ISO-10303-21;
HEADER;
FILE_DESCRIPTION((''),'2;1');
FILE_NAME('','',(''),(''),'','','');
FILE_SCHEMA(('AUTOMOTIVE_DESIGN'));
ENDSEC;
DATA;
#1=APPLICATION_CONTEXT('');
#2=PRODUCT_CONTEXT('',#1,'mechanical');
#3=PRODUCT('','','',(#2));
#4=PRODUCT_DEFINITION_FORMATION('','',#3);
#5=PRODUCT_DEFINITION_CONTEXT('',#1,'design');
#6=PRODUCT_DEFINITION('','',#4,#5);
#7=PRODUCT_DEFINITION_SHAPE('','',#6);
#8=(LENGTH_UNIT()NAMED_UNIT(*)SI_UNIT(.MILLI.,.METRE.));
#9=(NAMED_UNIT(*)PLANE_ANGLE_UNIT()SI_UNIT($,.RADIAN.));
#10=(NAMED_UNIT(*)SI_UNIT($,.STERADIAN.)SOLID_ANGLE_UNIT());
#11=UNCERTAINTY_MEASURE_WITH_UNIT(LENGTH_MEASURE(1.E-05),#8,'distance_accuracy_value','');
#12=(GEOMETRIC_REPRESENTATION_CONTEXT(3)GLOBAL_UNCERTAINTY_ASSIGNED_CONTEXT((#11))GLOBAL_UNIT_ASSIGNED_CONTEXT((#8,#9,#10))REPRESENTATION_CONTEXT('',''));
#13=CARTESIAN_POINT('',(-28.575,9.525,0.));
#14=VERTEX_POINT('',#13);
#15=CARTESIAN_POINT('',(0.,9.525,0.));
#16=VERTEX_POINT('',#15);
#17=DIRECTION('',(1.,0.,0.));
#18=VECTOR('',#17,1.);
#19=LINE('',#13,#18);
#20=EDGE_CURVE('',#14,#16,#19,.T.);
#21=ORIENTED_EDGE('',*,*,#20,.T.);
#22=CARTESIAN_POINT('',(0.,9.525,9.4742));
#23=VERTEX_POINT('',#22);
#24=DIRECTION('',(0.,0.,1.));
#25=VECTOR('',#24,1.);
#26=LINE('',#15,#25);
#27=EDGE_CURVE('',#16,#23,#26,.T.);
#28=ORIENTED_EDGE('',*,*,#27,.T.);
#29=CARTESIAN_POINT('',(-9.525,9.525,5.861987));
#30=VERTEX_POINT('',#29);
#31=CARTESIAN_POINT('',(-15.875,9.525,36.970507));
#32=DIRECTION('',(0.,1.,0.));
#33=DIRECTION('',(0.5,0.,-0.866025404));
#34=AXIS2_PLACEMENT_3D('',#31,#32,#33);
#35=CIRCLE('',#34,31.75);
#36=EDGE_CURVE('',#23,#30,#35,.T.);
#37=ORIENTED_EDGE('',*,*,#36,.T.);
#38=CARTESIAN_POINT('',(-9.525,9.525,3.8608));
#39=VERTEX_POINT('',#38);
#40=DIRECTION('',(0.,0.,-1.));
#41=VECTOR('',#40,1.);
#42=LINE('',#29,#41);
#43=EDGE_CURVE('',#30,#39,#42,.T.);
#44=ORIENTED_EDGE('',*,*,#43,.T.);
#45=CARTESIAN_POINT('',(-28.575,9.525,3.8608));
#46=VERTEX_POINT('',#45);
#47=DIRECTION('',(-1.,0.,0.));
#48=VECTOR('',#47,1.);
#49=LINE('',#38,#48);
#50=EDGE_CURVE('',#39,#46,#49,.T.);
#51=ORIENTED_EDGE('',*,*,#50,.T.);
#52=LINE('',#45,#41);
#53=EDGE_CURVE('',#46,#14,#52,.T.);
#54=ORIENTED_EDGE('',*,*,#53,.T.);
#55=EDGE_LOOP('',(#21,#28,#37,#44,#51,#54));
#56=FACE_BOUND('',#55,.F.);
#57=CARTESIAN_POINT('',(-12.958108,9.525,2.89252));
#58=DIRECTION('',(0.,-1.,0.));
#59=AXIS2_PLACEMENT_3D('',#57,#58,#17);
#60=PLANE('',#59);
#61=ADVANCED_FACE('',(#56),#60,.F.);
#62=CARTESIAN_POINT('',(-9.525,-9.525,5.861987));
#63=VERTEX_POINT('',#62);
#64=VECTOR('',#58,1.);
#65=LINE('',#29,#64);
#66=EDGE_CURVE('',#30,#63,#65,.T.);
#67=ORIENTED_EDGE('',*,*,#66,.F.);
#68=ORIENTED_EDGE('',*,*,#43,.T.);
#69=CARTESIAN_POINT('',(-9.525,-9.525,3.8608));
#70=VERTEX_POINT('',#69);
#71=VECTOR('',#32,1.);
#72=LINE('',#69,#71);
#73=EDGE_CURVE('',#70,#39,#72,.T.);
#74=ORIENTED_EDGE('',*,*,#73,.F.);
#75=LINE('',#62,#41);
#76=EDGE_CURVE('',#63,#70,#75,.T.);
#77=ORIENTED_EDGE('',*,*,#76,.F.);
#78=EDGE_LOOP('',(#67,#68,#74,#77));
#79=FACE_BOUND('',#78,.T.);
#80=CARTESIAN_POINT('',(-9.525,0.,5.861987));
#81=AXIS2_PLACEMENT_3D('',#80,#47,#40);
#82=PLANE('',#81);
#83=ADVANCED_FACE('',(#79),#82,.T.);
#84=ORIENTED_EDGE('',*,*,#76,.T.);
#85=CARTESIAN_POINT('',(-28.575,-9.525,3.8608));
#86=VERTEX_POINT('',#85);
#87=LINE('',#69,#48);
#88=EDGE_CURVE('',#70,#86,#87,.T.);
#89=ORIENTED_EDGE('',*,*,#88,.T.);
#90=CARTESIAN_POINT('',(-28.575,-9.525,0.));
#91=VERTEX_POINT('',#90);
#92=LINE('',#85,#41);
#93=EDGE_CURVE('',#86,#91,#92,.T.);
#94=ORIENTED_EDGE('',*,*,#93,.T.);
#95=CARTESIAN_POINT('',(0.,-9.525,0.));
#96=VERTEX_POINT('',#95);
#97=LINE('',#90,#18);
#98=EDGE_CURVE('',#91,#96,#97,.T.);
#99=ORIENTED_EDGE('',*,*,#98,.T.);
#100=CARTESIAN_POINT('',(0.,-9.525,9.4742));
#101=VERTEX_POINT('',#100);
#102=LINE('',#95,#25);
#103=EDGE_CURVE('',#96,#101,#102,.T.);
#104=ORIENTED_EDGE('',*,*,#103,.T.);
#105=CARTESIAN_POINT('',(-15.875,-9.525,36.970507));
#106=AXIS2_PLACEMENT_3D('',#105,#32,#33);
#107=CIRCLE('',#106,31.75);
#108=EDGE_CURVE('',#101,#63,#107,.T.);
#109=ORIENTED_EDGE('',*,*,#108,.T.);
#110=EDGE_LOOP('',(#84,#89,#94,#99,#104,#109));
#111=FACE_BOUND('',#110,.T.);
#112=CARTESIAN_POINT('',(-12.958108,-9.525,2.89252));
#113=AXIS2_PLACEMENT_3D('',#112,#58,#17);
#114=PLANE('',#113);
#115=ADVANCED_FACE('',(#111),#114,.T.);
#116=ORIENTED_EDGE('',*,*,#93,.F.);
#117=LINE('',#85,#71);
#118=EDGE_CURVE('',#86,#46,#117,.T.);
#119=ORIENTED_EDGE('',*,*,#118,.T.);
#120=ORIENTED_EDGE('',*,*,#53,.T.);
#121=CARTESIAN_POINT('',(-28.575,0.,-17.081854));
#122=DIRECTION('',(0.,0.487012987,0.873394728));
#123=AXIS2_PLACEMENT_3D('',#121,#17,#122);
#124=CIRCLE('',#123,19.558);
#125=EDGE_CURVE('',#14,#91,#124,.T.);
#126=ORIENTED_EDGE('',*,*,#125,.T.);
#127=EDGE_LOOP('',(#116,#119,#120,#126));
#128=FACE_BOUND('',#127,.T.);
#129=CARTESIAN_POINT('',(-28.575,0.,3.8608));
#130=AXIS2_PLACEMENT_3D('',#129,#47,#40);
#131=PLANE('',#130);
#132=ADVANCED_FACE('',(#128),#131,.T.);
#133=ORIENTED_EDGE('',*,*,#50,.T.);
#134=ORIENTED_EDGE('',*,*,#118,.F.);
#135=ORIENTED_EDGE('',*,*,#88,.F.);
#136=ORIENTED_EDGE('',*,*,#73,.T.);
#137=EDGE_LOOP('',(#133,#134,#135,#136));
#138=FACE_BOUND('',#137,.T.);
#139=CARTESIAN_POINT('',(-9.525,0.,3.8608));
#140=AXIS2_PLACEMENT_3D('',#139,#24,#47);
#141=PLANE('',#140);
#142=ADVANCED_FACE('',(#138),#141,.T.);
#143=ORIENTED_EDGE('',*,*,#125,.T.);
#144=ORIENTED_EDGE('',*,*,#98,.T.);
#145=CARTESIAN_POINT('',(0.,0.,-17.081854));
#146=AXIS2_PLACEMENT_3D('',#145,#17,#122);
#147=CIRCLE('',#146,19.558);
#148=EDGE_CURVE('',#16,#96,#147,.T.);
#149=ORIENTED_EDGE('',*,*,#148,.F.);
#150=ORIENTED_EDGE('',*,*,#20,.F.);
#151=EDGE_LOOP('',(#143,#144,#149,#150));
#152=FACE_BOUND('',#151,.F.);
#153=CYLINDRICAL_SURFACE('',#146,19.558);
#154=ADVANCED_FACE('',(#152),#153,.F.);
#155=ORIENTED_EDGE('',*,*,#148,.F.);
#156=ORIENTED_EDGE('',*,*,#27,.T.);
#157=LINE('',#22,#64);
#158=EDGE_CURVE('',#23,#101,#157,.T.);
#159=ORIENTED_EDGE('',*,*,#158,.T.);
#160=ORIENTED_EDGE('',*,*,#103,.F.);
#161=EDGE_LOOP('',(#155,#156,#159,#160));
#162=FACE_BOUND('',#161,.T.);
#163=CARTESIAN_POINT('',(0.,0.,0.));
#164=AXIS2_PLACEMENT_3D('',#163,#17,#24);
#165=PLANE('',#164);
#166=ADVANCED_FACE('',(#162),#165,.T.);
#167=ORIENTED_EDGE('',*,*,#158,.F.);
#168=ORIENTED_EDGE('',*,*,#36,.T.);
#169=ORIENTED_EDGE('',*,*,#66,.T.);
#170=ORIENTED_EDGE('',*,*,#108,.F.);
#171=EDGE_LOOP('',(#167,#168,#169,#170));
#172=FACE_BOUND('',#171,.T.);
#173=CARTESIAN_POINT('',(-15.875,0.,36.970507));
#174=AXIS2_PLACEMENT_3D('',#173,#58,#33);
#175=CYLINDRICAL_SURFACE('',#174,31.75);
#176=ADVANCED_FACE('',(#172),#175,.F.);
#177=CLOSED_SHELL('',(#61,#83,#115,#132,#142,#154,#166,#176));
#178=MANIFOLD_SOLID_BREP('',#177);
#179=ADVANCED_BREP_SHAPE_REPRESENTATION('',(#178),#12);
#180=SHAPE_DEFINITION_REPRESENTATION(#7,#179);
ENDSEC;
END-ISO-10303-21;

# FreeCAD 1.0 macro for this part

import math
import FreeCAD as App
import Part
import Sketcher
Q = App.Units.Quantity

doc = App.newDocument("Part")
body = doc.addObject("PartDesign::Body", "Body")

sketch1 = body.newObject("Sketcher::SketchObject", "Sketch")
sketch1.AttachmentSupport = (doc.getObject("XZ_Plane"), [""])
sketch1.MapMode = "FlatFace"
sketch1.addGeometry(Part.LineSegment(App.Vector(-28.6, 0, 0), App.Vector(0, 0, 0)), False)
sketch1.addGeometry(Part.LineSegment(App.Vector(0, 0, 0), App.Vector(0, 9.5, 0)), False)
sketch1.addGeometry(Part.ArcOfCircle(Part.Circle(App.Vector(-15.9, 37, 0), App.Vector(0, 0, 1), 31.8), math.radians(-78.46), math.radians(-60)), False)
sketch1.addGeometry(Part.LineSegment(App.Vector(-9.5, 5.9, 0), App.Vector(-9.5, 3.9, 0)), False)
sketch1.addGeometry(Part.LineSegment(App.Vector(-9.5, 3.9, 0), App.Vector(-28.6, 3.9, 0)), False)
sketch1.addGeometry(Part.LineSegment(App.Vector(-28.6, 3.9, 0), App.Vector(-28.6, 0, 0)), False)
sketch1.addConstraint(Sketcher.Constraint("Coincident", 0, 2, 1, 1))
sketch1.addConstraint(Sketcher.Constraint("Coincident", 1, 2, 2, 2))
sketch1.addConstraint(Sketcher.Constraint("Coincident", 2, 1, 3, 1))
sketch1.addConstraint(Sketcher.Constraint("Coincident", 3, 2, 4, 1))
sketch1.addConstraint(Sketcher.Constraint("Coincident", 4, 2, 5, 1))
sketch1.addConstraint(Sketcher.Constraint("Coincident", 5, 2, 0, 1))
sketch1.addConstraint(Sketcher.Constraint("Horizontal", 0))
sketch1.addConstraint(Sketcher.Constraint("Vertical", 1))
sketch1.addConstraint(Sketcher.Constraint("Vertical", 3))
sketch1.addConstraint(Sketcher.Constraint("Horizontal", 4))
sketch1.addConstraint(Sketcher.Constraint("Vertical", 5))
sketch1.addConstraint(Sketcher.Constraint("Coincident", 0, 2, -1, 1))
sketch1.addConstraint(Sketcher.Constraint("Radius", 2, Q("1.25 in")))
sketch1.addConstraint(Sketcher.Constraint("DistanceX", 4, 2, 4, 1, Q("0.75 in")))
sketch1.addConstraint(Sketcher.Constraint("DistanceX", 4, 2, 2, 3, Q("0.5 in")))
sketch1.addConstraint(Sketcher.Constraint("DistanceX", 0, 1, 0, 2, Q("1.125 in")))
sketch1.addConstraint(Sketcher.Constraint("DistanceY", 1, 1, 1, 2, Q("0.373 in")))
sketch1.addConstraint(Sketcher.Constraint("DistanceY", 5, 2, 5, 1, Q("0.152 in")))
pad1 = body.newObject("PartDesign::Pad", "Pad")
pad1.Profile = sketch1
pad1.Length = Q("0.75 in")
pad1.Midplane = True

sketch2 = body.newObject("Sketcher::SketchObject", "Sketch001")
sketch2.AttachmentSupport = (doc.getObject("YZ_Plane"), [""])
sketch2.MapMode = "FlatFace"
sketch2.addGeometry(Part.ArcOfCircle(Part.Circle(App.Vector(0, -17, 0), App.Vector(0, 0, 1), 20), math.radians(61), math.radians(119)), False)
sketch2.addGeometry(Part.LineSegment(App.Vector(-10, 0, 0), App.Vector(10, 0, 0)), False)
sketch2.addConstraint(Sketcher.Constraint("Coincident", 0, 1, 1, 2))
sketch2.addConstraint(Sketcher.Constraint("Coincident", 1, 1, 0, 2))
sketch2.addConstraint(Sketcher.Constraint("Horizontal", 1))
sketch2.addConstraint(Sketcher.Constraint("Symmetric", 0, 1, 1, 1, -1, 1))
sketch2.addConstraint(Sketcher.Constraint("Radius", 0, Q("0.77 in")))
sketch2.addConstraint(Sketcher.Constraint("DistanceX", 1, 1, 1, 2, Q("0.75 in")))
pocket1 = body.newObject("PartDesign::Pocket", "Pocket")
pocket1.Profile = sketch2
pocket1.Type = "ThroughAll"

doc.recompute()
